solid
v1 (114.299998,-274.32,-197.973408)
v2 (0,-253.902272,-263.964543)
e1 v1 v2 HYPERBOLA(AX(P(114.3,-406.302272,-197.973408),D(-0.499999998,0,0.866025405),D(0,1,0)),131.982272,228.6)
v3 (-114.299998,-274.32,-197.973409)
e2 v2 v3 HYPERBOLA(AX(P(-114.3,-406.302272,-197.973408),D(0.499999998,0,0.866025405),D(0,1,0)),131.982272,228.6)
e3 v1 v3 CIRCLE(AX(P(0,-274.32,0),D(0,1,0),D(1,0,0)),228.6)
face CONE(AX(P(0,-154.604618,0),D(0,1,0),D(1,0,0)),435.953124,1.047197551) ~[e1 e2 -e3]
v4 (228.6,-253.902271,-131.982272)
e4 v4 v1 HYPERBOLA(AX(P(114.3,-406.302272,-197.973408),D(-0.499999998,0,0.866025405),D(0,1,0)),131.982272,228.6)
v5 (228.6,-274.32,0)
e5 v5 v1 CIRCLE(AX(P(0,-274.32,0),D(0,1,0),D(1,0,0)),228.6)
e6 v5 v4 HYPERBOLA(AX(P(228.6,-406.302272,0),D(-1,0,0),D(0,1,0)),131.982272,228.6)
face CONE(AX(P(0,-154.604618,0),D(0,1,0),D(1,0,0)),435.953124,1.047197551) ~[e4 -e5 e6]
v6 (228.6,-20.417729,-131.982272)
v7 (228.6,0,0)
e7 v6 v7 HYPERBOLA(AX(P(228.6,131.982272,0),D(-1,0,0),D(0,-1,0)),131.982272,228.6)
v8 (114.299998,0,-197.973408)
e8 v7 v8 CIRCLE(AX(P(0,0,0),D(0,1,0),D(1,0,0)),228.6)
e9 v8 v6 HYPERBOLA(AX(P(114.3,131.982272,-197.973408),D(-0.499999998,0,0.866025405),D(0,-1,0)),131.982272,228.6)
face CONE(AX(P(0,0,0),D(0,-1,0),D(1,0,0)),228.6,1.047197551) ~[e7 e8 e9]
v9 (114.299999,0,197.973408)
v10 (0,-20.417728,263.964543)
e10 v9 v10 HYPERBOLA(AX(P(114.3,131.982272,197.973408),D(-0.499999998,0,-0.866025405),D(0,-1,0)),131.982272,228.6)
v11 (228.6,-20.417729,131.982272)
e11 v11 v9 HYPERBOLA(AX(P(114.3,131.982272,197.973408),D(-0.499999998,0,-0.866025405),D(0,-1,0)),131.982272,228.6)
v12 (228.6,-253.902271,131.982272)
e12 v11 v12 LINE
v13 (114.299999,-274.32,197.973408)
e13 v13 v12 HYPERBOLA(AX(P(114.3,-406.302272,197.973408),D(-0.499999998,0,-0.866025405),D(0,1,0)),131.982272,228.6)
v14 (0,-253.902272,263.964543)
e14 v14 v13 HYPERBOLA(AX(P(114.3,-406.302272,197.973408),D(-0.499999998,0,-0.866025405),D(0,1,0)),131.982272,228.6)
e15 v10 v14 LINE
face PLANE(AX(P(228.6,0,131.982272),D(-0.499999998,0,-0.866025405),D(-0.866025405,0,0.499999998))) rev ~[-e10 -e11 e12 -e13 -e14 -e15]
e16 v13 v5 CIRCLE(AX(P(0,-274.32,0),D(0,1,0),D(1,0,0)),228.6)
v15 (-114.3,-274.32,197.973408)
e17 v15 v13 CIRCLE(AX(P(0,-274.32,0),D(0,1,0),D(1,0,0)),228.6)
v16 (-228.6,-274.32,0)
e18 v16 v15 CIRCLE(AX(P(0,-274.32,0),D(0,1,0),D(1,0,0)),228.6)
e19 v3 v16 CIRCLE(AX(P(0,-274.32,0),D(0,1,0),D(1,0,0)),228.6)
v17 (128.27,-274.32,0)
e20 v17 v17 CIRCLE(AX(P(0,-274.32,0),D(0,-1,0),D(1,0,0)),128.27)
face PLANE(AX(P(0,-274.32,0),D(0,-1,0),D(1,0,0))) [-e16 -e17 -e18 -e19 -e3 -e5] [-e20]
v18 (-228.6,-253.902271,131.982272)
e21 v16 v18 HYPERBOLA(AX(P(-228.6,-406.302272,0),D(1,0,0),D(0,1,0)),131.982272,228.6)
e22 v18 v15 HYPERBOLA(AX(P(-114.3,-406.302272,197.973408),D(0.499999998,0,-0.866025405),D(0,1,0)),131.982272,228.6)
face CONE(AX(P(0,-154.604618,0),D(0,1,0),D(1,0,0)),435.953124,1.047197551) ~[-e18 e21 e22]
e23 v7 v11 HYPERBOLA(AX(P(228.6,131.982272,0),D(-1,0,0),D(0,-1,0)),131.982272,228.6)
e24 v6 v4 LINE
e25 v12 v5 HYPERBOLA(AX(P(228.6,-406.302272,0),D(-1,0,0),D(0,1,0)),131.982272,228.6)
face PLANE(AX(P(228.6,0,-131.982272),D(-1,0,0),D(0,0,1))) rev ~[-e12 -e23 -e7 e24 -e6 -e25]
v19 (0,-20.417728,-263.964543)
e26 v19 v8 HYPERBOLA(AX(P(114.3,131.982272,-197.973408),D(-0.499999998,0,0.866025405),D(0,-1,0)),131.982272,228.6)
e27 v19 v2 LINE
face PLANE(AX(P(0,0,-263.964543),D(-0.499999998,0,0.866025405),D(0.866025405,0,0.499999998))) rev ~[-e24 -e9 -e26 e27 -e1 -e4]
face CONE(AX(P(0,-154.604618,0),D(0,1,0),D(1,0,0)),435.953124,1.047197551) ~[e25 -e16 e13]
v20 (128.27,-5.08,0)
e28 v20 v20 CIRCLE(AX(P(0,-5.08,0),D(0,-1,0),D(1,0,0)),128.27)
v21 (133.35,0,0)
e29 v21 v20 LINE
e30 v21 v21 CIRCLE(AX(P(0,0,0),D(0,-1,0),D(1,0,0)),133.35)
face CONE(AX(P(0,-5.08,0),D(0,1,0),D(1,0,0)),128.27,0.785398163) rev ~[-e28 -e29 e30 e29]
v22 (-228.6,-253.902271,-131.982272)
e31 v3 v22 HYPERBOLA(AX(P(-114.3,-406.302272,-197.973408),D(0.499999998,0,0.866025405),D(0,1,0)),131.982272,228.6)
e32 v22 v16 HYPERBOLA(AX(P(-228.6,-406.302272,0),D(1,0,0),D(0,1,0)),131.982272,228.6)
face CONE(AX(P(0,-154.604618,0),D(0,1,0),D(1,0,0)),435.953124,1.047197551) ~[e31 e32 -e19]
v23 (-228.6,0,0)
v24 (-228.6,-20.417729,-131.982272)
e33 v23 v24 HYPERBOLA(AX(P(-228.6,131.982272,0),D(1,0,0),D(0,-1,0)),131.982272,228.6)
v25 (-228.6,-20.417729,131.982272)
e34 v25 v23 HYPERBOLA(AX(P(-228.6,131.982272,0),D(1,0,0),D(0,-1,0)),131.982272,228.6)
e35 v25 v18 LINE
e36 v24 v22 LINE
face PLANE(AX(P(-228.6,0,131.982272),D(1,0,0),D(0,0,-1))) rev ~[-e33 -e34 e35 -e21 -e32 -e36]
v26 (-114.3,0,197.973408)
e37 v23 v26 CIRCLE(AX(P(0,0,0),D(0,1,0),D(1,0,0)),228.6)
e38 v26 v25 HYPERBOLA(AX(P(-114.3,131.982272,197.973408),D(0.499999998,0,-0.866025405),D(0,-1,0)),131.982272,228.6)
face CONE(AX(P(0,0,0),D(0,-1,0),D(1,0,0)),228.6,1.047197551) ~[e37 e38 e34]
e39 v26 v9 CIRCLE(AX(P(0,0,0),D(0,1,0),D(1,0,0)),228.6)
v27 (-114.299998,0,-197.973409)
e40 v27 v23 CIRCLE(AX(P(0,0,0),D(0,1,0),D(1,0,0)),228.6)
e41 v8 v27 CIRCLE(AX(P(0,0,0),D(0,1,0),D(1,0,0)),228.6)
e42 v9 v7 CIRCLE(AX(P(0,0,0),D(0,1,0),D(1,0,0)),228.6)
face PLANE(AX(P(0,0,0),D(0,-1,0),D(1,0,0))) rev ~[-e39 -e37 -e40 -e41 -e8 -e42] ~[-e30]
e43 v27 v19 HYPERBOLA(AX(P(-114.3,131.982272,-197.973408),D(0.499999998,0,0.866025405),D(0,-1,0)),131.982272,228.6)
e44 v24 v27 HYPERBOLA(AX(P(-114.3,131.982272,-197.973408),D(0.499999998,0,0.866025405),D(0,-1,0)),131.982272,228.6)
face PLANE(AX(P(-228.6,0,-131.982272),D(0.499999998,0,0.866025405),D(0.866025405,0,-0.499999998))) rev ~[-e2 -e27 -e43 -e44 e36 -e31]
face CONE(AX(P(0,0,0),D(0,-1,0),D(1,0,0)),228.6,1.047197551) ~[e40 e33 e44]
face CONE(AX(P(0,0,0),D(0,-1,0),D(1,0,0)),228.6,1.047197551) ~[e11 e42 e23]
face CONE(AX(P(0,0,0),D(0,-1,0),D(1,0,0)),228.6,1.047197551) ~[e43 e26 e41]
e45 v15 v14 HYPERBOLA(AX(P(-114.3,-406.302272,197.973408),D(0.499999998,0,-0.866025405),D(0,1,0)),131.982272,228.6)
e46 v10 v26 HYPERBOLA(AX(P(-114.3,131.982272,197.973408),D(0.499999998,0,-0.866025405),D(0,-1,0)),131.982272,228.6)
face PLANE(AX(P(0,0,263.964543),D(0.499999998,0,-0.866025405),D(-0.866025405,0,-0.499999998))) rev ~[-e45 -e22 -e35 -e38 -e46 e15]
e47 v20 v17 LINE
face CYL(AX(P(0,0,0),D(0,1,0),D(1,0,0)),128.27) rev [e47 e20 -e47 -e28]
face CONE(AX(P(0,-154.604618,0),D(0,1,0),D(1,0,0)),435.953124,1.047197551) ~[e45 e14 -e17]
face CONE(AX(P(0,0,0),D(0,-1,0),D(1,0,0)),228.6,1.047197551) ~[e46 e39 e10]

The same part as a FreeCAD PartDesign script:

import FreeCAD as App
import Part
import Sketcher
from FreeCAD import Vector
Q = App.Units.Quantity


def edges_at(feature, points):
    """Names of the edges that pass closest to the given points."""
    edges = feature.Shape.Edges
    near = lambda p: min(range(len(edges)), key=lambda i: edges[i].distToShape(Part.Vertex(*p))[0])
    return sorted({f"Edge{near(p) + 1}" for p in points})


def add_polygon(sketch, points):
    """Adds a closed chain of lines whose ends are joined by coincident constraints."""
    first, n = sketch.GeometryCount, len(points)
    for a, b in zip(points, points[1:] + points[:1]):
        sketch.addGeometry(Part.LineSegment(App.Vector(*a, 0), App.Vector(*b, 0)), False)
    for i in range(n):
        sketch.addConstraint(Sketcher.Constraint("Coincident", first + i, 2, first + (i + 1) % n, 1))

doc = App.newDocument("Part")
body = doc.addObject("PartDesign::Body", "Body")

sketch1 = doc.addObject("Sketcher::SketchObject", "Sketch")
body.addObject(sketch1)
sketch1.AttachmentSupport = (doc.XZ_Plane, [""])
sketch1.MapMode = "FlatFace"
add_polygon(sketch1, [(229, -132), (229, 132), (0, 264), (-229, 132), (-229, -132), (0, -264)])
sketch1.addGeometry(Part.Circle(Vector(0, 0, 0), Vector(0, 0, 1), 128), False)
sketch1.addConstraint([
    Sketcher.Constraint("Vertical", 0),
    Sketcher.Constraint("Vertical", 3),
    Sketcher.Constraint("Coincident", 6, 3, -1, 1),
    Sketcher.Constraint("Symmetric", 0, 2, 3, 2, -1, 1),
    Sketcher.Constraint("Symmetric", 1, 2, 4, 2, -1, 1),
    Sketcher.Constraint("PointOnObject", 1, 2, -2),
    Sketcher.Constraint("Parallel", 2, 5),
    Sketcher.Constraint("Horizontal", 0, 2, 2, 2),
    Sketcher.Constraint("Diameter", 6, Q("10.1 in")),
    Sketcher.Constraint("DistanceX", -1, 1, 0, 2, Q("9 in")),
    Sketcher.Constraint("Angle", 1, Q("150 deg")),
    Sketcher.Constraint("DistanceY", 0, 1, 0, 2, 263.964544),
])
pad1 = doc.addObject("PartDesign::Pad", "Pad")
body.addObject(pad1)
pad1.Profile = sketch1
pad1.Length = Q("10.8 in")

sketch2 = doc.addObject("Sketcher::SketchObject", "Sketch001")
body.addObject(sketch2)
sketch2.AttachmentSupport = (doc.XY_Plane, [""])
sketch2.MapMode = "FlatFace"
add_polygon(sketch2, [(436, -155), (229, -274), (436, -274)])
add_polygon(sketch2, [(229, 0), (436, -120), (436, 0)])
sketch2.addConstraint([
    Sketcher.Constraint("Horizontal", 1),
    Sketcher.Constraint("Vertical", 2),
    Sketcher.Constraint("Vertical", 4),
    Sketcher.Constraint("Horizontal", 5),
    Sketcher.Constraint("PointOnObject", 4, 2, -1),
    Sketcher.Constraint("Vertical", 2, 2, 3, 2),
    Sketcher.Constraint("Vertical", 0, 2, 5, 2),
    Sketcher.Constraint("Equal", 2, 4),
    Sketcher.Constraint("DistanceX", -1, 1, 0, 2, Q("9 in")),
    Sketcher.Constraint("Angle", 0, Q("-150 deg")),
    Sketcher.Constraint("DistanceY", 0, 2, -1, 1, Q("10.8 in")),
    Sketcher.Constraint("DistanceX", 1, 1, 1, 2, 207.353124),
])
groove = doc.addObject("PartDesign::Groove", "Groove")
body.addObject(groove)
groove.Profile = sketch2
groove.ReferenceAxis = (sketch2, ["V_Axis"])
groove.Angle = 360
doc.recompute()

chamfer = doc.addObject("PartDesign::Chamfer", "Chamfer")
body.addObject(chamfer)
chamfer.Base = (groove, edges_at(groove, [(-128.27, 0, 0)]))
chamfer.Size = Q("0.2 in")

doc.recompute()
